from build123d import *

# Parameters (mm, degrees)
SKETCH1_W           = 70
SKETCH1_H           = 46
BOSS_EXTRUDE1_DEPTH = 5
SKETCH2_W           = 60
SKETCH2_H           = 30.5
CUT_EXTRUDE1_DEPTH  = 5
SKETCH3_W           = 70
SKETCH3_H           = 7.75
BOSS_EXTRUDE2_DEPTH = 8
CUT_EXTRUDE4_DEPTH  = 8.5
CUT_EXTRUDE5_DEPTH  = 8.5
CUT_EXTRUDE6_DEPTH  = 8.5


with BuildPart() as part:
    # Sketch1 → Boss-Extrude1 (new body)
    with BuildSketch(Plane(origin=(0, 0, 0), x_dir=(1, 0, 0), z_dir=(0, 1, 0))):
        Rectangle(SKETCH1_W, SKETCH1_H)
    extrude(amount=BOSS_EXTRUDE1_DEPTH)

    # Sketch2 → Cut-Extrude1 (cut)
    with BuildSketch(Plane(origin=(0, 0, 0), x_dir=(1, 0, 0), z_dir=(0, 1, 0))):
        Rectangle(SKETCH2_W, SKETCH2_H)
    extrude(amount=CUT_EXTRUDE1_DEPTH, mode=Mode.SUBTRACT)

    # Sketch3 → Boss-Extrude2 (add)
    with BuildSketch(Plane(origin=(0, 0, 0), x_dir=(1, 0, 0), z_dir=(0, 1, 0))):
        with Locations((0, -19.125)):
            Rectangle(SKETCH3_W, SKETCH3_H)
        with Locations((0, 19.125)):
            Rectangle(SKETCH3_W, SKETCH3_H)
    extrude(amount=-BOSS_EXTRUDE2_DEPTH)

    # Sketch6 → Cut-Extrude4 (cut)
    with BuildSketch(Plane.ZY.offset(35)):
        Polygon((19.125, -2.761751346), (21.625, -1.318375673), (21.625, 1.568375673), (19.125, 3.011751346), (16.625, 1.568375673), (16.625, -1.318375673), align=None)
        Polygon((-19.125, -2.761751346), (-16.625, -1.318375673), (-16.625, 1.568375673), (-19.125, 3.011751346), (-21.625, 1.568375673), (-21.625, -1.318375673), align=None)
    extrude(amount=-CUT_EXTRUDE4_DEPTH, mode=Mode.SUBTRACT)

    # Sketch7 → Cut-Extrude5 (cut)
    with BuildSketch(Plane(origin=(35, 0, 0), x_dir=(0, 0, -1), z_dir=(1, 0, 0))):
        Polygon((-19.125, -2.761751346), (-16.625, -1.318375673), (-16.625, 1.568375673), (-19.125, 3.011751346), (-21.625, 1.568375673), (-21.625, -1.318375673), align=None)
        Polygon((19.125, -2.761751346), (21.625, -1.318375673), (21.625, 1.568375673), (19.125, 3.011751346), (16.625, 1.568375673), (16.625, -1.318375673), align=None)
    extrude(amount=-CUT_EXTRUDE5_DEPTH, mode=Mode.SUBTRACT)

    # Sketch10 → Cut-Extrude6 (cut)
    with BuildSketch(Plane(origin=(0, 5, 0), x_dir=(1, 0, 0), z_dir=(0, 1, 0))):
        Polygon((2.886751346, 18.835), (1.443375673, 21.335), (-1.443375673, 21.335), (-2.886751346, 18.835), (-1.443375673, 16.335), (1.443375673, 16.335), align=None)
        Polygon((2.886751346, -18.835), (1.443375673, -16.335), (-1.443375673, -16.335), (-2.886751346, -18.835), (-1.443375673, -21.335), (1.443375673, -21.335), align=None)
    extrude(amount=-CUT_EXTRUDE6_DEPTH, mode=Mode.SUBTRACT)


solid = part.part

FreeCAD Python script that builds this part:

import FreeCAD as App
import Part
import Sketcher
Q = App.Units.Quantity

doc = App.newDocument("Part")
body = doc.addObject("PartDesign::Body", "Body")

# Sketch on XZ plane
sketch1 = body.newObject("Sketcher::SketchObject", "Sketch")
sketch1.AttachmentSupport = (doc.getObject("XZ_Plane"), [""])
sketch1.MapMode = "FlatFace"
sketch1.addGeometry([
    Part.LineSegment(App.Vector(-35, -23, 0), App.Vector(-35, 23, 0)),
    Part.LineSegment(App.Vector(-35, 23, 0), App.Vector(35, 23, 0)),
    Part.LineSegment(App.Vector(35, 23, 0), App.Vector(35, -23, 0)),
    Part.LineSegment(App.Vector(35, -23, 0), App.Vector(-35, -23, 0)),
], False)
sketch1.addConstraint([
    Sketcher.Constraint("Coincident", 0, 2, 1, 1),
    Sketcher.Constraint("Coincident", 1, 2, 2, 1),
    Sketcher.Constraint("Coincident", 2, 2, 3, 1),
    Sketcher.Constraint("Coincident", 3, 2, 0, 1),
    Sketcher.Constraint("Vertical", 0),
    Sketcher.Constraint("Horizontal", 1),
    Sketcher.Constraint("Vertical", 2),
    Sketcher.Constraint("Horizontal", 3),
    Sketcher.Constraint("Symmetric", 0, 2, 2, 2, -1, 1),
    Sketcher.Constraint("DistanceX", 1, 1, 1, 2, Q("70 mm")),
    Sketcher.Constraint("DistanceY", 0, 1, 0, 2, Q("46 mm")),
])
pad1 = body.newObject("PartDesign::Pad", "Pad")
pad1.Profile = sketch1
pad1.Length = 5
pad1.Reversed = True

# Sketch on XZ plane
sketch2 = body.newObject("Sketcher::SketchObject", "Sketch001")
sketch2.AttachmentSupport = (doc.getObject("XZ_Plane"), [""])
sketch2.MapMode = "FlatFace"
sketch2.addGeometry([
    Part.LineSegment(App.Vector(-30, -15, 0), App.Vector(-30, 15, 0)),
    Part.LineSegment(App.Vector(-30, 15, 0), App.Vector(30, 15, 0)),
    Part.LineSegment(App.Vector(30, 15, 0), App.Vector(30, -15, 0)),
    Part.LineSegment(App.Vector(30, -15, 0), App.Vector(-30, -15, 0)),
], False)
sketch2.addConstraint([
    Sketcher.Constraint("Coincident", 0, 2, 1, 1),
    Sketcher.Constraint("Coincident", 1, 2, 2, 1),
    Sketcher.Constraint("Coincident", 2, 2, 3, 1),
    Sketcher.Constraint("Coincident", 3, 2, 0, 1),
    Sketcher.Constraint("Vertical", 0),
    Sketcher.Constraint("Horizontal", 1),
    Sketcher.Constraint("Vertical", 2),
    Sketcher.Constraint("Horizontal", 3),
    Sketcher.Constraint("Symmetric", 0, 2, 2, 2, -1, 1),
    Sketcher.Constraint("DistanceX", 1, 1, 1, 2, Q("60 mm")),
    Sketcher.Constraint("DistanceY", 0, 1, 0, 2, Q("30.5 mm")),
])
pocket1 = body.newObject("PartDesign::Pocket", "Pocket")
pocket1.Profile = sketch2
pocket1.Length = 5

# Sketch on XZ plane
sketch3 = body.newObject("Sketcher::SketchObject", "Sketch002")
sketch3.AttachmentSupport = (doc.getObject("XZ_Plane"), [""])
sketch3.MapMode = "FlatFace"
sketch3.addGeometry([
    Part.LineSegment(App.Vector(-35, 15, 0), App.Vector(-35, 23, 0)),  # 0
    Part.LineSegment(App.Vector(-35, 23, 0), App.Vector(35, 23, 0)),  # 1
    Part.LineSegment(App.Vector(35, 23, 0), App.Vector(35, 15, 0)),  # 2
    Part.LineSegment(App.Vector(35, 15, 0), App.Vector(-35, 15, 0)),  # 3
    Part.LineSegment(App.Vector(-35, -23, 0), App.Vector(-35, -15, 0)),  # 4
    Part.LineSegment(App.Vector(-35, -15, 0), App.Vector(35, -15, 0)),  # 5
    Part.LineSegment(App.Vector(35, -15, 0), App.Vector(35, -23, 0)),  # 6
    Part.LineSegment(App.Vector(35, -23, 0), App.Vector(-35, -23, 0)),  # 7
], False)
sketch3.addConstraint([
    Sketcher.Constraint("Coincident", 0, 2, 1, 1),
    Sketcher.Constraint("Coincident", 1, 2, 2, 1),
    Sketcher.Constraint("Coincident", 2, 2, 3, 1),
    Sketcher.Constraint("Coincident", 3, 2, 0, 1),
    Sketcher.Constraint("Coincident", 4, 2, 5, 1),
    Sketcher.Constraint("Coincident", 5, 2, 6, 1),
    Sketcher.Constraint("Coincident", 6, 2, 7, 1),
    Sketcher.Constraint("Coincident", 7, 2, 4, 1),
    Sketcher.Constraint("Vertical", 0),
    Sketcher.Constraint("Horizontal", 1),
    Sketcher.Constraint("Vertical", 2),
    Sketcher.Constraint("Horizontal", 3),
    Sketcher.Constraint("Vertical", 4),
    Sketcher.Constraint("Horizontal", 5),
    Sketcher.Constraint("Vertical", 6),
    Sketcher.Constraint("Horizontal", 7),
    Sketcher.Constraint("Symmetric", 2, 2, 4, 2, -1, 1),
    Sketcher.Constraint("Symmetric", 0, 2, 6, 2, -1, 1),
    Sketcher.Constraint("Vertical", 3, 2, 4, 2),
    Sketcher.Constraint("DistanceX", 1, 1, 1, 2, Q("70 mm")),
    Sketcher.Constraint("DistanceY", -1, 1, 0, 2, Q("23 mm")),
    Sketcher.Constraint("DistanceY", 0, 1, 0, 2, Q("7.75 mm")),
])
pad2 = body.newObject("PartDesign::Pad", "Pad001")
pad2.Profile = sketch3
pad2.Length = 8

# Sketch on YZ plane
sketch4 = body.newObject("Sketcher::SketchObject", "Sketch003")
sketch4.AttachmentSupport = (doc.getObject("YZ_Plane"), [""])
sketch4.MapMode = "FlatFace"
sketch4.AttachmentOffset = App.Placement(App.Vector(0, 0, -35), App.Rotation())
sketch4.addGeometry([
    Part.LineSegment(App.Vector(-2.8, 19.1, 0), App.Vector(-1.3, 21.6, 0)),  # 0
    Part.LineSegment(App.Vector(-1.3, 21.6, 0), App.Vector(1.6, 21.6, 0)),  # 1
    Part.LineSegment(App.Vector(1.6, 21.6, 0), App.Vector(3, 19.1, 0)),  # 2
    Part.LineSegment(App.Vector(3, 19.1, 0), App.Vector(1.6, 16.6, 0)),  # 3
    Part.LineSegment(App.Vector(1.6, 16.6, 0), App.Vector(-1.3, 16.6, 0)),  # 4
    Part.LineSegment(App.Vector(-1.3, 16.6, 0), App.Vector(-2.8, 19.1, 0)),  # 5
    Part.LineSegment(App.Vector(-2.8, -19.1, 0), App.Vector(-1.3, -16.6, 0)),  # 6
    Part.LineSegment(App.Vector(-1.3, -16.6, 0), App.Vector(1.6, -16.6, 0)),  # 7
    Part.LineSegment(App.Vector(1.6, -16.6, 0), App.Vector(3, -19.1, 0)),  # 8
    Part.LineSegment(App.Vector(3, -19.1, 0), App.Vector(1.6, -21.6, 0)),  # 9
    Part.LineSegment(App.Vector(1.6, -21.6, 0), App.Vector(-1.3, -21.6, 0)),  # 10
    Part.LineSegment(App.Vector(-1.3, -21.6, 0), App.Vector(-2.8, -19.1, 0)),  # 11
], False)
sketch4.addConstraint([
    Sketcher.Constraint("Coincident", 0, 2, 1, 1),
    Sketcher.Constraint("Coincident", 1, 2, 2, 1),
    Sketcher.Constraint("Coincident", 2, 2, 3, 1),
    Sketcher.Constraint("Coincident", 3, 2, 4, 1),
    Sketcher.Constraint("Coincident", 4, 2, 5, 1),
    Sketcher.Constraint("Coincident", 5, 2, 0, 1),
    Sketcher.Constraint("Coincident", 6, 2, 7, 1),
    Sketcher.Constraint("Coincident", 7, 2, 8, 1),
    Sketcher.Constraint("Coincident", 8, 2, 9, 1),
    Sketcher.Constraint("Coincident", 9, 2, 10, 1),
    Sketcher.Constraint("Coincident", 10, 2, 11, 1),
    Sketcher.Constraint("Coincident", 11, 2, 6, 1),
    Sketcher.Constraint("Horizontal", 1),
    Sketcher.Constraint("Horizontal", 4),
    Sketcher.Constraint("Horizontal", 7),
    Sketcher.Constraint("Horizontal", 10),
    Sketcher.Constraint("Symmetric", 4, 2, 6, 2, -1),
    Sketcher.Constraint("Symmetric", 2, 2, 8, 2, -1),
    Sketcher.Constraint("Symmetric", 1, 2, 9, 2, -1),
    Sketcher.Constraint("Symmetric", 5, 2, 11, 2, -1),
    Sketcher.Constraint("Parallel", 0, 3),
    Sketcher.Constraint("Parallel", 2, 5),
    Sketcher.Constraint("Parallel", 3, 6),
    Sketcher.Constraint("Parallel", 5, 8),
    Sketcher.Constraint("Parallel", 8, 11),
    Sketcher.Constraint("Horizontal", 2, 2, 5, 2),
    Sketcher.Constraint("Vertical", 1, 2, 3, 2),
    Sketcher.Constraint("Angle", 0, Q("60 deg")),
    Sketcher.Constraint("DistanceY", 3, 2, 1, 2, Q("5 mm")),
    Sketcher.Constraint("DistanceY", 6, 2, 4, 2, Q("33.25 mm")),
    Sketcher.Constraint("DistanceX", 1, 1, 1, 2, Q("2.886751 mm")),
    Sketcher.Constraint("DistanceX", -1, 1, 2, 2, Q("3.011751 mm")),
])
pocket2 = body.newObject("PartDesign::Pocket", "Pocket001")
pocket2.Profile = sketch4
pocket2.Length = 8.5
pocket2.Reversed = True

# Sketch on YZ plane
sketch5 = body.newObject("Sketcher::SketchObject", "Sketch004")
sketch5.AttachmentSupport = (doc.getObject("YZ_Plane"), [""])
sketch5.MapMode = "FlatFace"
sketch5.AttachmentOffset = App.Placement(App.Vector(0, 0, 35), App.Rotation())
sketch5.addGeometry([
    Part.LineSegment(App.Vector(-2.8, 19.1, 0), App.Vector(-1.3, 16.6, 0)),  # 0
    Part.LineSegment(App.Vector(-1.3, 16.6, 0), App.Vector(1.6, 16.6, 0)),  # 1
    Part.LineSegment(App.Vector(1.6, 16.6, 0), App.Vector(3, 19.1, 0)),  # 2
    Part.LineSegment(App.Vector(3, 19.1, 0), App.Vector(1.6, 21.6, 0)),  # 3
    Part.LineSegment(App.Vector(1.6, 21.6, 0), App.Vector(-1.3, 21.6, 0)),  # 4
    Part.LineSegment(App.Vector(-1.3, 21.6, 0), App.Vector(-2.8, 19.1, 0)),  # 5
    Part.LineSegment(App.Vector(-2.8, -19.1, 0), App.Vector(-1.3, -21.6, 0)),  # 6
    Part.LineSegment(App.Vector(-1.3, -21.6, 0), App.Vector(1.6, -21.6, 0)),  # 7
    Part.LineSegment(App.Vector(1.6, -21.6, 0), App.Vector(3, -19.1, 0)),  # 8
    Part.LineSegment(App.Vector(3, -19.1, 0), App.Vector(1.6, -16.6, 0)),  # 9
    Part.LineSegment(App.Vector(1.6, -16.6, 0), App.Vector(-1.3, -16.6, 0)),  # 10
    Part.LineSegment(App.Vector(-1.3, -16.6, 0), App.Vector(-2.8, -19.1, 0)),  # 11
], False)
sketch5.addConstraint([
    Sketcher.Constraint("Coincident", 0, 2, 1, 1),
    Sketcher.Constraint("Coincident", 1, 2, 2, 1),
    Sketcher.Constraint("Coincident", 2, 2, 3, 1),
    Sketcher.Constraint("Coincident", 3, 2, 4, 1),
    Sketcher.Constraint("Coincident", 4, 2, 5, 1),
    Sketcher.Constraint("Coincident", 5, 2, 0, 1),
    Sketcher.Constraint("Coincident", 6, 2, 7, 1),
    Sketcher.Constraint("Coincident", 7, 2, 8, 1),
    Sketcher.Constraint("Coincident", 8, 2, 9, 1),
    Sketcher.Constraint("Coincident", 9, 2, 10, 1),
    Sketcher.Constraint("Coincident", 10, 2, 11, 1),
    Sketcher.Constraint("Coincident", 11, 2, 6, 1),
    Sketcher.Constraint("Horizontal", 1),
    Sketcher.Constraint("Horizontal", 4),
    Sketcher.Constraint("Horizontal", 7),
    Sketcher.Constraint("Horizontal", 10),
    Sketcher.Constraint("Symmetric", 4, 2, 6, 2, -1),
    Sketcher.Constraint("Symmetric", 2, 2, 8, 2, -1),
    Sketcher.Constraint("Symmetric", 1, 2, 9, 2, -1),
    Sketcher.Constraint("Symmetric", 5, 2, 11, 2, -1),
    Sketcher.Constraint("Parallel", 0, 3),
    Sketcher.Constraint("Parallel", 2, 5),
    Sketcher.Constraint("Parallel", 3, 6),
    Sketcher.Constraint("Parallel", 5, 8),
    Sketcher.Constraint("Parallel", 8, 11),
    Sketcher.Constraint("Horizontal", 2, 2, 5, 2),
    Sketcher.Constraint("Vertical", 1, 2, 3, 2),
    Sketcher.Constraint("Angle", 0, Q("-60 deg")),
    Sketcher.Constraint("DistanceY", 1, 2, 3, 2, Q("5 mm")),
    Sketcher.Constraint("DistanceY", 6, 2, 0, 2, Q("38.25 mm")),
    Sketcher.Constraint("DistanceX", 1, 1, 1, 2, Q("2.886751 mm")),
    Sketcher.Constraint("DistanceX", -1, 1, 2, 2, Q("3.011751 mm")),
])
pocket3 = body.newObject("PartDesign::Pocket", "Pocket002")
pocket3.Profile = sketch5
pocket3.Length = 8.5

# Sketch on XZ plane
sketch6 = body.newObject("Sketcher::SketchObject", "Sketch005")
sketch6.AttachmentSupport = (doc.getObject("XZ_Plane"), [""])
sketch6.MapMode = "FlatFace"
sketch6.AttachmentOffset = App.Placement(App.Vector(0, 0, -5), App.Rotation())
sketch6.addGeometry([
    Part.LineSegment(App.Vector(2.9, -18.8, 0), App.Vector(1.4, -21.3, 0)),  # 0
    Part.LineSegment(App.Vector(1.4, -21.3, 0), App.Vector(-1.4, -21.3, 0)),  # 1
    Part.LineSegment(App.Vector(-1.4, -21.3, 0), App.Vector(-2.9, -18.8, 0)),  # 2
    Part.LineSegment(App.Vector(-2.9, -18.8, 0), App.Vector(-1.4, -16.3, 0)),  # 3
    Part.LineSegment(App.Vector(-1.4, -16.3, 0), App.Vector(1.4, -16.3, 0)),  # 4
    Part.LineSegment(App.Vector(1.4, -16.3, 0), App.Vector(2.9, -18.8, 0)),  # 5
    Part.LineSegment(App.Vector(2.9, 18.8, 0), App.Vector(1.4, 16.3, 0)),  # 6
    Part.LineSegment(App.Vector(1.4, 16.3, 0), App.Vector(-1.4, 16.3, 0)),  # 7
    Part.LineSegment(App.Vector(-1.4, 16.3, 0), App.Vector(-2.9, 18.8, 0)),  # 8
    Part.LineSegment(App.Vector(-2.9, 18.8, 0), App.Vector(-1.4, 21.3, 0)),  # 9
    Part.LineSegment(App.Vector(-1.4, 21.3, 0), App.Vector(1.4, 21.3, 0)),  # 10
    Part.LineSegment(App.Vector(1.4, 21.3, 0), App.Vector(2.9, 18.8, 0)),  # 11
], False)
sketch6.addConstraint([
    Sketcher.Constraint("Coincident", 0, 2, 1, 1),
    Sketcher.Constraint("Coincident", 1, 2, 2, 1),
    Sketcher.Constraint("Coincident", 2, 2, 3, 1),
    Sketcher.Constraint("Coincident", 3, 2, 4, 1),
    Sketcher.Constraint("Coincident", 4, 2, 5, 1),
    Sketcher.Constraint("Coincident", 5, 2, 0, 1),
    Sketcher.Constraint("Coincident", 6, 2, 7, 1),
    Sketcher.Constraint("Coincident", 7, 2, 8, 1),
    Sketcher.Constraint("Coincident", 8, 2, 9, 1),
    Sketcher.Constraint("Coincident", 9, 2, 10, 1),
    Sketcher.Constraint("Coincident", 10, 2, 11, 1),
    Sketcher.Constraint("Coincident", 11, 2, 6, 1),
    Sketcher.Constraint("Horizontal", 1),
    Sketcher.Constraint("Horizontal", 4),
    Sketcher.Constraint("Horizontal", 7),
    Sketcher.Constraint("Horizontal", 10),
    Sketcher.Constraint("Symmetric", 3, 2, 6, 2, -1, 1),
    Sketcher.Constraint("Symmetric", 5, 2, 8, 2, -1, 1),
    Sketcher.Constraint("Symmetric", 0, 2, 9, 2, -1, 1),
    Sketcher.Constraint("Symmetric", 2, 2, 11, 2, -1, 1),
    Sketcher.Constraint("Symmetric", 2, 2, 5, 2, -2),
    Sketcher.Constraint("Parallel", 0, 3),
    Sketcher.Constraint("Parallel", 2, 5),
    Sketcher.Constraint("Parallel", 5, 8),
    Sketcher.Constraint("Parallel", 8, 11),
    Sketcher.Constraint("Vertical", 1, 2, 3, 2),
    Sketcher.Constraint("Vertical", 0, 2, 4, 2),
    Sketcher.Constraint("Angle", 0, Q("-120 deg")),
    Sketcher.Constraint("DistanceY", 1, 2, 3, 2, Q("5 mm")),
    Sketcher.Constraint("DistanceY", 4, 2, 6, 2, Q("32.67 mm")),
    Sketcher.Constraint("DistanceX", 1, 2, 1, 1, Q("2.886751 mm")),
])
pocket4 = body.newObject("PartDesign::Pocket", "Pocket003")
pocket4.Profile = sketch6
pocket4.Length = 8.5
pocket4.Reversed = True

doc.recompute()
